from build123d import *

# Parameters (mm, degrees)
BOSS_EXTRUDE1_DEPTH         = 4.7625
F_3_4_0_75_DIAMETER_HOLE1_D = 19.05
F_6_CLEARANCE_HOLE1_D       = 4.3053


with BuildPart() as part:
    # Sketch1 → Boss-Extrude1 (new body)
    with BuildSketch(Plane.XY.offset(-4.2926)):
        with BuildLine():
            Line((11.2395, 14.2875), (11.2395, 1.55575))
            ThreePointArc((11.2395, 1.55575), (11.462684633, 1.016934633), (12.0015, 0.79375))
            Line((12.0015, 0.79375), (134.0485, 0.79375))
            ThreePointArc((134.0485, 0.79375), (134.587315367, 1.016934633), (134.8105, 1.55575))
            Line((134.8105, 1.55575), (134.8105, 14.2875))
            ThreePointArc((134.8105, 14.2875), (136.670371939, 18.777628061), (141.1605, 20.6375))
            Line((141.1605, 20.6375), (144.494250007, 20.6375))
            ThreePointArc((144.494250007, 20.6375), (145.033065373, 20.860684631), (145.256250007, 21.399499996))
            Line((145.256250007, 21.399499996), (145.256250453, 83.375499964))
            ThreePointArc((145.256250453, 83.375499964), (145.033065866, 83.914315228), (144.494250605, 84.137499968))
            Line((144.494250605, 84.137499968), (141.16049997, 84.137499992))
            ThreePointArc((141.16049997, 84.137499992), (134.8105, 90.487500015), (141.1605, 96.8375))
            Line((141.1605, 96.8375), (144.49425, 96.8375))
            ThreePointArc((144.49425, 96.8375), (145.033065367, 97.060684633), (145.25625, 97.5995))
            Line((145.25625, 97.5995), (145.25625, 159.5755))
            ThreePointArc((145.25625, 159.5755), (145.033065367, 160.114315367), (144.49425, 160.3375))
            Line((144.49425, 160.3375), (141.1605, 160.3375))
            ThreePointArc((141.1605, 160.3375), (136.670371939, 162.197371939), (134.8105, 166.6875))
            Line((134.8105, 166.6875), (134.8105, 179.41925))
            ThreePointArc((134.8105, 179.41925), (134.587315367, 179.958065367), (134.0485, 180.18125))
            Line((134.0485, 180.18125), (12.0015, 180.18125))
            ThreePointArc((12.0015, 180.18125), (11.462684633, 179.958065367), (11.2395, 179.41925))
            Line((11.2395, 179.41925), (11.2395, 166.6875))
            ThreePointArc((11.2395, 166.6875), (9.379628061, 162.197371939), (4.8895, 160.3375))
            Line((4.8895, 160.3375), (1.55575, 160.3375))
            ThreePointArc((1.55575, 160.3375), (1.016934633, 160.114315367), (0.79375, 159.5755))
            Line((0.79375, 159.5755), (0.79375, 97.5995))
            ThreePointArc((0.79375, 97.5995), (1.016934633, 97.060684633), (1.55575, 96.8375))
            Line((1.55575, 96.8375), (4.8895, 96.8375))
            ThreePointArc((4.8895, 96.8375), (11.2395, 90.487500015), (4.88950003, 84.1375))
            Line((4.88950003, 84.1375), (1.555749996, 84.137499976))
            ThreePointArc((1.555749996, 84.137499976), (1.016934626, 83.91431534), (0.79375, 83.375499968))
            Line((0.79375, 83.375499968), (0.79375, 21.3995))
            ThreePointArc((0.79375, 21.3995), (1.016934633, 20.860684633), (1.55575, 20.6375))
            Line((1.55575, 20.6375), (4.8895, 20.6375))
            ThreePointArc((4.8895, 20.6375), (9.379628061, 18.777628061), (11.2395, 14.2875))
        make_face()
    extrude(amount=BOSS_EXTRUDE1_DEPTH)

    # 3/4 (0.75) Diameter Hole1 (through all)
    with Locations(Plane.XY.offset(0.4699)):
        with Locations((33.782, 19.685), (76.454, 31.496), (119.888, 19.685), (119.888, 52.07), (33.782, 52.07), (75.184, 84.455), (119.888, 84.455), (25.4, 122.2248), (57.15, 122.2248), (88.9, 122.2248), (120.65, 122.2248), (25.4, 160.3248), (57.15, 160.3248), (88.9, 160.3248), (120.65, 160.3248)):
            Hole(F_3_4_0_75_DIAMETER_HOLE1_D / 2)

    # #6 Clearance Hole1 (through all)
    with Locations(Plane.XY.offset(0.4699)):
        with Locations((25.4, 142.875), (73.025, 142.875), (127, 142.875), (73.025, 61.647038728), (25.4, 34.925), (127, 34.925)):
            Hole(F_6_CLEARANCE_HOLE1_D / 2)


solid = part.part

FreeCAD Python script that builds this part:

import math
import FreeCAD as App
import Part
import Sketcher

V = App.Vector
Q = App.Units.Quantity

doc = App.newDocument("Part")
body = doc.addObject("PartDesign::Body", "Body")

# Sketch on XY plane
sketch1 = body.newObject("Sketcher::SketchObject", "Sketch")
sketch1.AttachmentSupport = (doc.getObject("XY_Plane"), [""])
sketch1.MapMode = "FlatFace"
sketch1.AttachmentOffset = App.Placement(V(0, 0, -0.169 * 25.4), App.Rotation())
sketch1.addGeometry(Part.LineSegment(V(11.2, 14.3, 0), V(11.2, 1.6, 0)), False)
sketch1.addGeometry(Part.ArcOfCircle(Part.Circle(V(12, 1.6, 0), V(0, 0, 1), 0.8), math.radians(-180), math.radians(-90)), False)
sketch1.addGeometry(Part.LineSegment(V(12, 0.8, 0), V(134, 0.8, 0)), False)
sketch1.addGeometry(Part.ArcOfCircle(Part.Circle(V(134, 1.6, 0), V(0, 0, 1), 0.8), math.radians(-90), math.radians(0)), False)
sketch1.addGeometry(Part.LineSegment(V(134.8, 1.6, 0), V(134.8, 14.3, 0)), False)
sketch1.addGeometry(Part.ArcOfCircle(Part.Circle(V(141.2, 14.3, 0), V(0, 0, 1), 6.3), math.radians(90), math.radians(180)), False)
sketch1.addGeometry(Part.LineSegment(V(141.2, 20.6, 0), V(144.5, 20.6, 0)), False)
sketch1.addGeometry(Part.ArcOfCircle(Part.Circle(V(144.5, 21.4, 0), V(0, 0, 1), 0.8), math.radians(-90), math.radians(0)), False)
sketch1.addGeometry(Part.LineSegment(V(145.3, 21.4, 0), V(145.3, 83.4, 0)), False)
sketch1.addGeometry(Part.ArcOfCircle(Part.Circle(V(144.5, 83.4, 0), V(0, 0, 1), 0.8), math.radians(0), math.radians(90)), False)
sketch1.addGeometry(Part.LineSegment(V(144.5, 84.1, 0), V(141.2, 84.1, 0)), False)
sketch1.addGeometry(Part.ArcOfCircle(Part.Circle(V(141.2, 90.5, 0), V(0, 0, 1), 6.4), math.radians(90), math.radians(270)), False)
sketch1.addGeometry(Part.LineSegment(V(141.2, 96.8, 0), V(144.5, 96.8, 0)), False)
sketch1.addGeometry(Part.ArcOfCircle(Part.Circle(V(144.5, 97.6, 0), V(0, 0, 1), 0.8), math.radians(-90), math.radians(0)), False)
sketch1.addGeometry(Part.LineSegment(V(145.3, 97.6, 0), V(145.3, 159.6, 0)), False)
sketch1.addGeometry(Part.ArcOfCircle(Part.Circle(V(144.5, 159.6, 0), V(0, 0, 1), 0.8), math.radians(0), math.radians(90)), False)
sketch1.addGeometry(Part.LineSegment(V(144.5, 160.3, 0), V(141.2, 160.3, 0)), False)
sketch1.addGeometry(Part.ArcOfCircle(Part.Circle(V(141.2, 166.7, 0), V(0, 0, 1), 6.3), math.radians(180), math.radians(270)), False)
sketch1.addGeometry(Part.LineSegment(V(134.8, 166.7, 0), V(134.8, 179.4, 0)), False)
sketch1.addGeometry(Part.ArcOfCircle(Part.Circle(V(134, 179.4, 0), V(0, 0, 1), 0.8), math.radians(0), math.radians(90)), False)
sketch1.addGeometry(Part.LineSegment(V(134, 180.2, 0), V(12, 180.2, 0)), False)
sketch1.addGeometry(Part.ArcOfCircle(Part.Circle(V(12, 179.4, 0), V(0, 0, 1), 0.8), math.radians(90), math.radians(180)), False)
sketch1.addGeometry(Part.LineSegment(V(11.2, 179.4, 0), V(11.2, 166.7, 0)), False)
sketch1.addGeometry(Part.ArcOfCircle(Part.Circle(V(4.9, 166.7, 0), V(0, 0, 1), 6.3), math.radians(-90), math.radians(0)), False)
sketch1.addGeometry(Part.LineSegment(V(4.9, 160.3, 0), V(1.6, 160.3, 0)), False)
sketch1.addGeometry(Part.ArcOfCircle(Part.Circle(V(1.6, 159.6, 0), V(0, 0, 1), 0.8), math.radians(90), math.radians(180)), False)
sketch1.addGeometry(Part.LineSegment(V(0.8, 159.6, 0), V(0.8, 97.6, 0)), False)
sketch1.addGeometry(Part.ArcOfCircle(Part.Circle(V(1.6, 97.6, 0), V(0, 0, 1), 0.8), math.radians(-180), math.radians(-90)), False)
sketch1.addGeometry(Part.LineSegment(V(1.6, 96.8, 0), V(4.9, 96.8, 0)), False)
sketch1.addGeometry(Part.ArcOfCircle(Part.Circle(V(4.9, 90.5, 0), V(0, 0, 1), 6.3), math.radians(-90), math.radians(90)), False)
sketch1.addGeometry(Part.LineSegment(V(4.9, 84.1, 0), V(1.6, 84.1, 0)), False)
sketch1.addGeometry(Part.ArcOfCircle(Part.Circle(V(1.6, 83.4, 0), V(0, 0, 1), 0.8), math.radians(90), math.radians(180)), False)
sketch1.addGeometry(Part.LineSegment(V(0.8, 83.4, 0), V(0.8, 21.4, 0)), False)
sketch1.addGeometry(Part.ArcOfCircle(Part.Circle(V(1.6, 21.4, 0), V(0, 0, 1), 0.8), math.radians(-180), math.radians(-90)), False)
sketch1.addGeometry(Part.LineSegment(V(1.6, 20.6, 0), V(4.9, 20.6, 0)), False)
sketch1.addGeometry(Part.ArcOfCircle(Part.Circle(V(4.9, 14.3, 0), V(0, 0, 1), 6.3), math.radians(0), math.radians(90)), False)
sketch1.addConstraint(Sketcher.Constraint("Tangent", 0, 2, 1, 1))
sketch1.addConstraint(Sketcher.Constraint("Tangent", 1, 2, 2, 1))
sketch1.addConstraint(Sketcher.Constraint("Tangent", 2, 2, 3, 1))
sketch1.addConstraint(Sketcher.Constraint("Tangent", 3, 2, 4, 1))
sketch1.addConstraint(Sketcher.Constraint("Tangent", 4, 2, 5, 2))
sketch1.addConstraint(Sketcher.Constraint("Tangent", 5, 1, 6, 1))
sketch1.addConstraint(Sketcher.Constraint("Tangent", 6, 2, 7, 1))
sketch1.addConstraint(Sketcher.Constraint("Tangent", 7, 2, 8, 1))
sketch1.addConstraint(Sketcher.Constraint("Tangent", 8, 2, 9, 1))
sketch1.addConstraint(Sketcher.Constraint("Tangent", 9, 2, 10, 1))
sketch1.addConstraint(Sketcher.Constraint("Tangent", 10, 2, 11, 2))
sketch1.addConstraint(Sketcher.Constraint("Tangent", 11, 1, 12, 1))
sketch1.addConstraint(Sketcher.Constraint("Tangent", 12, 2, 13, 1))
sketch1.addConstraint(Sketcher.Constraint("Tangent", 13, 2, 14, 1))
sketch1.addConstraint(Sketcher.Constraint("Tangent", 14, 2, 15, 1))
sketch1.addConstraint(Sketcher.Constraint("Tangent", 15, 2, 16, 1))
sketch1.addConstraint(Sketcher.Constraint("Tangent", 16, 2, 17, 2))
sketch1.addConstraint(Sketcher.Constraint("Tangent", 17, 1, 18, 1))
sketch1.addConstraint(Sketcher.Constraint("Tangent", 18, 2, 19, 1))
sketch1.addConstraint(Sketcher.Constraint("Tangent", 19, 2, 20, 1))
sketch1.addConstraint(Sketcher.Constraint("Tangent", 20, 2, 21, 1))
sketch1.addConstraint(Sketcher.Constraint("Tangent", 21, 2, 22, 1))
sketch1.addConstraint(Sketcher.Constraint("Tangent", 22, 2, 23, 2))
sketch1.addConstraint(Sketcher.Constraint("Tangent", 23, 1, 24, 1))
sketch1.addConstraint(Sketcher.Constraint("Tangent", 24, 2, 25, 1))
sketch1.addConstraint(Sketcher.Constraint("Tangent", 25, 2, 26, 1))
sketch1.addConstraint(Sketcher.Constraint("Tangent", 26, 2, 27, 1))
sketch1.addConstraint(Sketcher.Constraint("Tangent", 27, 2, 28, 1))
sketch1.addConstraint(Sketcher.Constraint("Tangent", 28, 2, 29, 2))
sketch1.addConstraint(Sketcher.Constraint("Tangent", 29, 1, 30, 1))
sketch1.addConstraint(Sketcher.Constraint("Tangent", 30, 2, 31, 1))
sketch1.addConstraint(Sketcher.Constraint("Tangent", 31, 2, 32, 1))
sketch1.addConstraint(Sketcher.Constraint("Tangent", 32, 2, 33, 1))
sketch1.addConstraint(Sketcher.Constraint("Tangent", 33, 2, 34, 1))
sketch1.addConstraint(Sketcher.Constraint("Tangent", 34, 2, 35, 2))
sketch1.addConstraint(Sketcher.Constraint("Tangent", 35, 1, 0, 1))
sketch1.addConstraint(Sketcher.Constraint("Vertical", 0))
sketch1.addConstraint(Sketcher.Constraint("Horizontal", 2))
sketch1.addConstraint(Sketcher.Constraint("Vertical", 4))
sketch1.addConstraint(Sketcher.Constraint("Horizontal", 6))
sketch1.addConstraint(Sketcher.Constraint("Vertical", 8))
sketch1.addConstraint(Sketcher.Constraint("Horizontal", 10))
sketch1.addConstraint(Sketcher.Constraint("Horizontal", 12))
sketch1.addConstraint(Sketcher.Constraint("Vertical", 14))
sketch1.addConstraint(Sketcher.Constraint("Horizontal", 16))
sketch1.addConstraint(Sketcher.Constraint("Vertical", 18))
sketch1.addConstraint(Sketcher.Constraint("Horizontal", 20))
sketch1.addConstraint(Sketcher.Constraint("Vertical", 22))
sketch1.addConstraint(Sketcher.Constraint("Horizontal", 24))
sketch1.addConstraint(Sketcher.Constraint("Vertical", 26))
sketch1.addConstraint(Sketcher.Constraint("Horizontal", 28))
sketch1.addConstraint(Sketcher.Constraint("Horizontal", 30))
sketch1.addConstraint(Sketcher.Constraint("Vertical", 32))
sketch1.addConstraint(Sketcher.Constraint("Horizontal", 34))
sketch1.addConstraint(Sketcher.Constraint("Equal", 1, 3))
sketch1.addConstraint(Sketcher.Constraint("Equal", 3, 7))
sketch1.addConstraint(Sketcher.Constraint("Equal", 7, 9))
sketch1.addConstraint(Sketcher.Constraint("Equal", 5, 11))
sketch1.addConstraint(Sketcher.Constraint("Equal", 9, 13))
sketch1.addConstraint(Sketcher.Constraint("Equal", 13, 15))
sketch1.addConstraint(Sketcher.Constraint("Equal", 11, 17))
sketch1.addConstraint(Sketcher.Constraint("Equal", 15, 19))
sketch1.addConstraint(Sketcher.Constraint("Equal", 19, 21))
sketch1.addConstraint(Sketcher.Constraint("Equal", 17, 23))
sketch1.addConstraint(Sketcher.Constraint("Equal", 21, 25))
sketch1.addConstraint(Sketcher.Constraint("Equal", 25, 27))
sketch1.addConstraint(Sketcher.Constraint("Equal", 23, 29))
sketch1.addConstraint(Sketcher.Constraint("Equal", 27, 31))
sketch1.addConstraint(Sketcher.Constraint("Equal", 31, 33))
sketch1.addConstraint(Sketcher.Constraint("Equal", 29, 35))
sketch1.addConstraint(Sketcher.Constraint("Horizontal", 17, 3, 23, 3))
sketch1.addConstraint(Sketcher.Constraint("Horizontal", 13, 3, 27, 3))
sketch1.addConstraint(Sketcher.Constraint("Horizontal", 7, 3, 33, 3))
sketch1.addConstraint(Sketcher.Constraint("Vertical", 5, 3, 11, 3))
sketch1.addConstraint(Sketcher.Constraint("Vertical", 9, 3, 13, 3))
sketch1.addConstraint(Sketcher.Constraint("Vertical", 11, 3, 17, 3))
sketch1.addConstraint(Sketcher.Constraint("Vertical", 1, 3, 21, 3))
sketch1.addConstraint(Sketcher.Constraint("Vertical", 23, 3, 29, 3))
sketch1.addConstraint(Sketcher.Constraint("Vertical", 27, 3, 31, 3))
sketch1.addConstraint(Sketcher.Constraint("Equal", 16, 24))
sketch1.addConstraint(Sketcher.Constraint("Equal", 8, 14))
sketch1.addConstraint(Sketcher.Constraint("Equal", 4, 18))
sketch1.addConstraint(Sketcher.Constraint("Radius", 1, Q("0.03 in")))
sketch1.addConstraint(Sketcher.Constraint("Radius", 5, Q("0.25 in")))
sketch1.addConstraint(Sketcher.Constraint("DistanceY", 5, 3, 11, 3, Q("3 in")))
sketch1.addConstraint(Sketcher.Constraint("DistanceX", 2, 1, 2, 2, Q("4.805 in")))
sketch1.addConstraint(Sketcher.Constraint("DistanceY", -1, 1, 5, 3, Q("0.5625 in")))
sketch1.addConstraint(Sketcher.Constraint("DistanceY", -1, 1, 1, 2, Q("0.03125 in")))
sketch1.addConstraint(Sketcher.Constraint("DistanceX", -1, 1, 7, 2, Q("5.71875 in")))
sketch1.addConstraint(Sketcher.Constraint("DistanceX", -1, 1, 25, 2, Q("0.03125 in")))
pad1 = body.newObject("PartDesign::Pad", "Pad")
pad1.Profile = sketch1
pad1.Length = Q("0.1875 in")

# Sketch on XY plane
sketch2 = body.newObject("Sketcher::SketchObject", "Sketch001")
sketch2.AttachmentSupport = (doc.getObject("XY_Plane"), [""])
sketch2.MapMode = "FlatFace"
sketch2.AttachmentOffset = App.Placement(V(0, 0, 0.0185 * 25.4), App.Rotation())
sketch2.addGeometry(Part.Circle(V(34, 20, 0), V(0, 0, 1), 10), False)
sketch2.addGeometry(Part.Circle(V(76, 31, 0), V(0, 0, 1), 10), False)
sketch2.addGeometry(Part.Circle(V(120, 20, 0), V(0, 0, 1), 10), False)
sketch2.addGeometry(Part.Circle(V(120, 52, 0), V(0, 0, 1), 10), False)
sketch2.addGeometry(Part.Circle(V(34, 52, 0), V(0, 0, 1), 10), False)
sketch2.addGeometry(Part.Circle(V(75, 84, 0), V(0, 0, 1), 10), False)
sketch2.addGeometry(Part.Circle(V(120, 84, 0), V(0, 0, 1), 10), False)
sketch2.addGeometry(Part.Circle(V(25, 122, 0), V(0, 0, 1), 10), False)
sketch2.addGeometry(Part.Circle(V(57, 122, 0), V(0, 0, 1), 10), False)
sketch2.addGeometry(Part.Circle(V(89, 122, 0), V(0, 0, 1), 10), False)
sketch2.addGeometry(Part.Circle(V(121, 122, 0), V(0, 0, 1), 10), False)
sketch2.addGeometry(Part.Circle(V(25, 160, 0), V(0, 0, 1), 10), False)
sketch2.addGeometry(Part.Circle(V(57, 160, 0), V(0, 0, 1), 10), False)
sketch2.addGeometry(Part.Circle(V(89, 160, 0), V(0, 0, 1), 10), False)
sketch2.addGeometry(Part.Circle(V(121, 160, 0), V(0, 0, 1), 10), False)
sketch2.addConstraint(Sketcher.Constraint("Equal", 0, 1))
sketch2.addConstraint(Sketcher.Constraint("Equal", 1, 2))
sketch2.addConstraint(Sketcher.Constraint("Equal", 2, 3))
sketch2.addConstraint(Sketcher.Constraint("Equal", 3, 4))
sketch2.addConstraint(Sketcher.Constraint("Equal", 4, 5))
sketch2.addConstraint(Sketcher.Constraint("Equal", 5, 6))
sketch2.addConstraint(Sketcher.Constraint("Equal", 6, 7))
sketch2.addConstraint(Sketcher.Constraint("Equal", 7, 8))
sketch2.addConstraint(Sketcher.Constraint("Equal", 8, 9))
sketch2.addConstraint(Sketcher.Constraint("Equal", 9, 10))
sketch2.addConstraint(Sketcher.Constraint("Equal", 10, 11))
sketch2.addConstraint(Sketcher.Constraint("Equal", 11, 12))
sketch2.addConstraint(Sketcher.Constraint("Equal", 12, 13))
sketch2.addConstraint(Sketcher.Constraint("Equal", 13, 14))
sketch2.addConstraint(Sketcher.Constraint("Horizontal", 0, 3, 2, 3))
sketch2.addConstraint(Sketcher.Constraint("Horizontal", 3, 3, 4, 3))
sketch2.addConstraint(Sketcher.Constraint("Horizontal", 5, 3, 6, 3))
sketch2.addConstraint(Sketcher.Constraint("Horizontal", 7, 3, 8, 3))
sketch2.addConstraint(Sketcher.Constraint("Horizontal", 8, 3, 9, 3))
sketch2.addConstraint(Sketcher.Constraint("Horizontal", 9, 3, 10, 3))
sketch2.addConstraint(Sketcher.Constraint("Horizontal", 11, 3, 12, 3))
sketch2.addConstraint(Sketcher.Constraint("Horizontal", 12, 3, 13, 3))
sketch2.addConstraint(Sketcher.Constraint("Horizontal", 13, 3, 14, 3))
sketch2.addConstraint(Sketcher.Constraint("Vertical", 2, 3, 3, 3))
sketch2.addConstraint(Sketcher.Constraint("Vertical", 0, 3, 4, 3))
sketch2.addConstraint(Sketcher.Constraint("Vertical", 3, 3, 6, 3))
sketch2.addConstraint(Sketcher.Constraint("Vertical", 7, 3, 11, 3))
sketch2.addConstraint(Sketcher.Constraint("Vertical", 8, 3, 12, 3))
sketch2.addConstraint(Sketcher.Constraint("Vertical", 9, 3, 13, 3))
sketch2.addConstraint(Sketcher.Constraint("Vertical", 10, 3, 14, 3))
sketch2.addConstraint(Sketcher.Constraint("Diameter", 0, Q("0.75 in")))
sketch2.addConstraint(Sketcher.Constraint("DistanceX", -1, 1, 7, 3, Q("1 in")))
sketch2.addConstraint(Sketcher.Constraint("DistanceX", -1, 1, 9, 3, Q("3.5 in")))
sketch2.addConstraint(Sketcher.Constraint("DistanceX", 8, 3, 10, 3, Q("2.5 in")))
sketch2.addConstraint(Sketcher.Constraint("DistanceY", 7, 3, 11, 3, Q("1.5 in")))
sketch2.addConstraint(Sketcher.Constraint("DistanceX", -1, 1, 0, 3, Q("1.33 in")))
sketch2.addConstraint(Sketcher.Constraint("DistanceX", -1, 1, 1, 3, Q("3.01 in")))
sketch2.addConstraint(Sketcher.Constraint("DistanceY", -1, 1, 1, 3, Q("1.24 in")))
sketch2.addConstraint(Sketcher.Constraint("DistanceX", -1, 1, 2, 3, Q("4.72 in")))
sketch2.addConstraint(Sketcher.Constraint("DistanceY", -1, 1, 3, 3, Q("2.05 in")))
sketch2.addConstraint(Sketcher.Constraint("DistanceX", -1, 1, 5, 3, Q("2.96 in")))
sketch2.addConstraint(Sketcher.Constraint("DistanceX", -1, 1, 8, 3, Q("2.25 in")))
sketch2.addConstraint(Sketcher.Constraint("DistanceY", 0, 3, 5, 3, Q("2.55 in")))
sketch2.addConstraint(Sketcher.Constraint("DistanceY", -1, 1, 0, 3, Q("0.775 in")))
sketch2.addConstraint(Sketcher.Constraint("DistanceY", -1, 1, 7, 3, Q("4.812 in")))
doc.recompute()
hole = body.newObject("PartDesign::Hole", "Hole")
hole.Profile = sketch2
hole.ThreadType = "None"
hole.Diameter = Q("0.75 in")
hole.DepthType = "ThroughAll"

# Sketch on XY plane
sketch3 = body.newObject("Sketcher::SketchObject", "Sketch002")
sketch3.AttachmentSupport = (doc.getObject("XY_Plane"), [""])
sketch3.MapMode = "FlatFace"
sketch3.AttachmentOffset = App.Placement(V(0, 0, 0.0185 * 25.4), App.Rotation())
sketch3.addGeometry(Part.Circle(V(25.4, 142.9, 0), V(0, 0, 1), 2.2), False)
sketch3.addGeometry(Part.Circle(V(73, 142.9, 0), V(0, 0, 1), 2.2), False)
sketch3.addGeometry(Part.Circle(V(127, 142.9, 0), V(0, 0, 1), 2.2), False)
sketch3.addGeometry(Part.Circle(V(73, 61.6, 0), V(0, 0, 1), 2.2), False)
sketch3.addGeometry(Part.Circle(V(25.4, 34.9, 0), V(0, 0, 1), 2.2), False)
sketch3.addGeometry(Part.Circle(V(127, 34.9, 0), V(0, 0, 1), 2.2), False)
sketch3.addConstraint(Sketcher.Constraint("Equal", 0, 1))
sketch3.addConstraint(Sketcher.Constraint("Equal", 1, 2))
sketch3.addConstraint(Sketcher.Constraint("Equal", 2, 3))
sketch3.addConstraint(Sketcher.Constraint("Equal", 3, 4))
sketch3.addConstraint(Sketcher.Constraint("Equal", 4, 5))
sketch3.addConstraint(Sketcher.Constraint("Horizontal", 0, 3, 1, 3))
sketch3.addConstraint(Sketcher.Constraint("Horizontal", 1, 3, 2, 3))
sketch3.addConstraint(Sketcher.Constraint("Horizontal", 4, 3, 5, 3))
sketch3.addConstraint(Sketcher.Constraint("Vertical", 1, 3, 3, 3))
sketch3.addConstraint(Sketcher.Constraint("Vertical", 0, 3, 4, 3))
sketch3.addConstraint(Sketcher.Constraint("Vertical", 2, 3, 5, 3))
sketch3.addConstraint(Sketcher.Constraint("DistanceX", -1, 1, 0, 3, Q("1 in")))
sketch3.addConstraint(Sketcher.Constraint("DistanceX", -1, 1, 2, 3, Q("5 in")))
sketch3.addConstraint(Sketcher.Constraint("Diameter", 0, Q("0.1695 in")))
sketch3.addConstraint(Sketcher.Constraint("DistanceY", 4, 3, 0, 3, Q("4.25 in")))
sketch3.addConstraint(Sketcher.Constraint("DistanceY", -1, 1, 0, 3, Q("5.625 in")))
sketch3.addConstraint(Sketcher.Constraint("DistanceX", -1, 1, 1, 3, Q("2.875 in")))
sketch3.addConstraint(Sketcher.Constraint("DistanceY", -1, 1, 3, 3, 61.647039))
doc.recompute()
hole2 = body.newObject("PartDesign::Hole", "Hole001")
hole2.Profile = sketch3
hole2.ThreadType = "None"
hole2.Diameter = Q("0.1695 in")
hole2.DepthType = "ThroughAll"

doc.recompute()
